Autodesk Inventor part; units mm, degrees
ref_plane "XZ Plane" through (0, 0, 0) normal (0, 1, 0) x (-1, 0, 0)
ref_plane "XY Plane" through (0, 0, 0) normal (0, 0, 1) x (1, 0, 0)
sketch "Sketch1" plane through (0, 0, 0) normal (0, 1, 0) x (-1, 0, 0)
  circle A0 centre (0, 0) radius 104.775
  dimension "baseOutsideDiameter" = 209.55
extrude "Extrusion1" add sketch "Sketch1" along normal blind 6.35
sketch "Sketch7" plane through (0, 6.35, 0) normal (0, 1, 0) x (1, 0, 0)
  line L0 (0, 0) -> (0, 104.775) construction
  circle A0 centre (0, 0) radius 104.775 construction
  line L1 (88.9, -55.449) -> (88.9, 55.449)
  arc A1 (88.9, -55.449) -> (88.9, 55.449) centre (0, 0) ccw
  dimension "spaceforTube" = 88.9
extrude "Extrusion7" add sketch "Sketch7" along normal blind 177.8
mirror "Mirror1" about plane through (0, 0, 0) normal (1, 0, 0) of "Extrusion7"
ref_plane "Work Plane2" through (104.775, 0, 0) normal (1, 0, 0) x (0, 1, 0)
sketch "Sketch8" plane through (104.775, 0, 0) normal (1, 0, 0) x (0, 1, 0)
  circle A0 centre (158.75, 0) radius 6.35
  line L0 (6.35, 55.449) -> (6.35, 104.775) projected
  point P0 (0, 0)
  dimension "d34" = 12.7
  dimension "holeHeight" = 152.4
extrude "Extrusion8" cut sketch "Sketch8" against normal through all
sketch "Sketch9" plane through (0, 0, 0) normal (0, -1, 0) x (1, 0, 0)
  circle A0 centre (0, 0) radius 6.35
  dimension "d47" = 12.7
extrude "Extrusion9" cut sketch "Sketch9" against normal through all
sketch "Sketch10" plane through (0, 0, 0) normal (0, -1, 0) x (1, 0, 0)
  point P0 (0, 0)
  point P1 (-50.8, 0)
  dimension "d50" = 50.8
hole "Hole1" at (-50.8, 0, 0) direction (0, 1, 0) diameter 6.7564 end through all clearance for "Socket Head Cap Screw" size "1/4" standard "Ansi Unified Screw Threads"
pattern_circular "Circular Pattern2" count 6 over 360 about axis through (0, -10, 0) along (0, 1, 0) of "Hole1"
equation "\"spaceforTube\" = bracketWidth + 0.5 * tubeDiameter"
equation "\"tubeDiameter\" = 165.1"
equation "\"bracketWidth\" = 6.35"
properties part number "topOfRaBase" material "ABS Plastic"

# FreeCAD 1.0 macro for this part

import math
import FreeCAD as App
import Part
import Sketcher
from FreeCAD import Vector
Q = App.Units.Quantity

doc = App.newDocument("Part")
body = doc.addObject("PartDesign::Body", "Body")

# Sketch on XZ plane
sketch1 = body.newObject("Sketcher::SketchObject", "Sketch")
sketch1.AttachmentSupport = (doc.getObject("XZ_Plane"), [""])
sketch1.MapMode = "FlatFace"
sketch1.addGeometry(Part.Circle(Vector(0, 0, 0), Vector(0, 0, 1), 105), False)
sketch1.addConstraint([
    Sketcher.Constraint("Coincident", 0, 3, -1, 1),
    Sketcher.Constraint("Diameter", 0, Q("8.25 in")),
])
pad1 = body.newObject("PartDesign::Pad", "Pad")
pad1.Profile = sketch1
pad1.Length = Q("0.25 in")
pad1.Reversed = True

# Sketch on XZ plane
sketch2 = body.newObject("Sketcher::SketchObject", "Sketch001")
sketch2.AttachmentSupport = (doc.getObject("XZ_Plane"), [""])
sketch2.MapMode = "FlatFace"
sketch2.AttachmentOffset = App.Placement(Vector(0, 0, -0.25 * 25.4), App.Rotation())
sketch2.addGeometry([
    Part.LineSegment(Vector(89, -55, 0), Vector(89, 55, 0)),
    Part.ArcOfCircle(Part.Circle(Vector(0, 0, 0), Vector(0, 0, 1), 105), math.radians(-32), math.radians(32)),
], False)
sketch2.addConstraint([
    Sketcher.Constraint("Coincident", 0, 1, 1, 1),
    Sketcher.Constraint("Coincident", 1, 2, 0, 2),
    Sketcher.Constraint("Vertical", 0),
    Sketcher.Constraint("Coincident", 1, 3, -1, 1),
    Sketcher.Constraint("DistanceX", -1, 1, 0, 1, Q("3.5 in")),
    Sketcher.Constraint("Radius", 1, Q("4.125 in")),
])
pad2 = body.newObject("PartDesign::Pad", "Pad001")
pad2.Profile = sketch2
pad2.Length = Q("7 in")
pad2.Reversed = True
doc.recompute()

mirrored = body.newObject("PartDesign::Mirrored", "Mirrored")
mirrored.Originals = [pad2]
mirrored.MirrorPlane = (doc.getObject("YZ_Plane"), [""])
body.Tip = mirrored

# Sketch on YZ plane
sketch3 = body.newObject("Sketcher::SketchObject", "Sketch002")
sketch3.AttachmentSupport = (doc.getObject("YZ_Plane"), [""])
sketch3.MapMode = "FlatFace"
sketch3.AttachmentOffset = App.Placement(Vector(0, 0, 4.125 * 25.4), App.Rotation())
sketch3.addGeometry(Part.Circle(Vector(159, 0, 0), Vector(0, 0, 1), 6), False)
sketch3.addConstraint([
    Sketcher.Constraint("PointOnObject", 0, 3, -1),
    Sketcher.Constraint("Diameter", 0, Q("0.5 in")),
    Sketcher.Constraint("DistanceX", -1, 1, 0, 3, Q("6.25 in")),
])
pocket1 = body.newObject("PartDesign::Pocket", "Pocket")
pocket1.Profile = sketch3
pocket1.Type = "ThroughAll"

# Sketch on XZ plane
sketch4 = body.newObject("Sketcher::SketchObject", "Sketch003")
sketch4.AttachmentSupport = (doc.getObject("XZ_Plane"), [""])
sketch4.MapMode = "FlatFace"
sketch4.addGeometry(Part.Circle(Vector(0, 0, 0), Vector(0, 0, 1), 6), False)
sketch4.addConstraint([
    Sketcher.Constraint("Coincident", 0, 3, -1, 1),
    Sketcher.Constraint("Diameter", 0, Q("0.5 in")),
])
pocket2 = body.newObject("PartDesign::Pocket", "Pocket001")
pocket2.Profile = sketch4
pocket2.Type = "ThroughAll"

# Sketch on XZ plane
sketch5 = body.newObject("Sketcher::SketchObject", "Sketch004")
sketch5.AttachmentSupport = (doc.getObject("XZ_Plane"), [""])
sketch5.MapMode = "FlatFace"
sketch5.addGeometry(Part.Circle(Vector(-50.8, 0, 0), Vector(0, 0, 1), 3.4), False)
sketch5.addConstraint([
    Sketcher.Constraint("PointOnObject", 0, 3, -1),
    Sketcher.Constraint("Diameter", 0, Q("0.266 in")),
    Sketcher.Constraint("DistanceX", 0, 3, -1, 1, Q("2 in")),
])
doc.recompute()
hole = body.newObject("PartDesign::Hole", "Hole")
hole.Profile = sketch5
hole.ThreadType = "None"
hole.Diameter = Q("0.266 in")
hole.DepthType = "ThroughAll"
doc.recompute()

polarpattern = body.newObject("PartDesign::PolarPattern", "PolarPattern")
polarpattern.Originals = [hole]
polarpattern.Axis = (doc.getObject("Y_Axis"), [""])
polarpattern.Angle = 360
polarpattern.Occurrences = 6
body.Tip = polarpattern

doc.recompute()
